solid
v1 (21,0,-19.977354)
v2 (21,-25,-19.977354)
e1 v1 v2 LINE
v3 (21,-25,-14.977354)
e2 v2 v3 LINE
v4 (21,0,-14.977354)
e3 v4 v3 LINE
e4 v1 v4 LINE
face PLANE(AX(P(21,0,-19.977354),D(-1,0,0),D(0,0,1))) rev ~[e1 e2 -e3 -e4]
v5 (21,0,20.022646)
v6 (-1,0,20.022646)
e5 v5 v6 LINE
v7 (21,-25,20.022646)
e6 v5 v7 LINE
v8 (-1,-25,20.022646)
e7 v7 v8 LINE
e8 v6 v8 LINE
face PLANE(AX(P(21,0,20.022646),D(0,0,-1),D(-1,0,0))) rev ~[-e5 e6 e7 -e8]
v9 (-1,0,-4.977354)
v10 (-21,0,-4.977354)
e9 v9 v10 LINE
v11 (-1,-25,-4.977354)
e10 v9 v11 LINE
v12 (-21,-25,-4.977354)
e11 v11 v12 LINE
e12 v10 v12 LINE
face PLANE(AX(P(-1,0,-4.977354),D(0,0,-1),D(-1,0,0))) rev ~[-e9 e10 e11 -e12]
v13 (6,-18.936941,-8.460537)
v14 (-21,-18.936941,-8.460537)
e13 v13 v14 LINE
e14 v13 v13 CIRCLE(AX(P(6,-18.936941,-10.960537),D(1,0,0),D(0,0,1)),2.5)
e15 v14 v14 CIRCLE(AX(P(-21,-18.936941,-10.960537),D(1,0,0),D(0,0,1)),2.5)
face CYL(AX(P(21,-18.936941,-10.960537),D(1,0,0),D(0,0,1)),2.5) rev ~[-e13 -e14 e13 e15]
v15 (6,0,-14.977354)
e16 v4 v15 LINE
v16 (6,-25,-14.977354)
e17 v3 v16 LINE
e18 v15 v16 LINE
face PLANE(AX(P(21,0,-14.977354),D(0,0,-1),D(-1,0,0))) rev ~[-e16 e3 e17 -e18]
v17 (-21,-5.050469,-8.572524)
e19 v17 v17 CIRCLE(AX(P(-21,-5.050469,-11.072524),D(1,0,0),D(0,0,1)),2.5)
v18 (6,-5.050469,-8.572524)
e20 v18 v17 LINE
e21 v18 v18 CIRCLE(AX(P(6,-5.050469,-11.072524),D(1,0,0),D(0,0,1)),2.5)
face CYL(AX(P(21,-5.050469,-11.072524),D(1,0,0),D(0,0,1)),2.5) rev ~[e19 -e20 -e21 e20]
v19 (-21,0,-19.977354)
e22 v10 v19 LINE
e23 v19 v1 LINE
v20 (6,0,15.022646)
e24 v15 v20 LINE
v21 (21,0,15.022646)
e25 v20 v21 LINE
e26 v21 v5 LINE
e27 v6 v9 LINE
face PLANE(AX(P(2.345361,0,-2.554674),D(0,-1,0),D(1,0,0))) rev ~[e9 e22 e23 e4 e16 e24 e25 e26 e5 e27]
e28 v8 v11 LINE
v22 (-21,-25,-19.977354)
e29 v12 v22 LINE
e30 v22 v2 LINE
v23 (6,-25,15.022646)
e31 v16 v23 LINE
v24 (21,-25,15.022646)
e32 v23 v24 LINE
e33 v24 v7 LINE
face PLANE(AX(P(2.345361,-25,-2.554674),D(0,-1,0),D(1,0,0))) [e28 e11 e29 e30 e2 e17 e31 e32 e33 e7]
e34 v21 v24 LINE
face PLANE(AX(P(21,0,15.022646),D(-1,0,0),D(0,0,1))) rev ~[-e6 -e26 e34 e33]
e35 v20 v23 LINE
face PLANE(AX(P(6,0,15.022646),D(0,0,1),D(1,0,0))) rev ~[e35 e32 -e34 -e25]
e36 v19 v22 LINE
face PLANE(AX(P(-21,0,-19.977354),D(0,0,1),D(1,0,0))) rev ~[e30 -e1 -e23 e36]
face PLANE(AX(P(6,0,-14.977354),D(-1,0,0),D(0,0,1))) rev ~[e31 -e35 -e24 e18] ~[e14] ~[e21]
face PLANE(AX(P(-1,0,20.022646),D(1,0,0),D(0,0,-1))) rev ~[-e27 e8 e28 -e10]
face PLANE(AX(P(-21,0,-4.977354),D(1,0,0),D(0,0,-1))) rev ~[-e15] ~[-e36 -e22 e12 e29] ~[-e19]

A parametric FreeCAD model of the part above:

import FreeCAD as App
import Part
import Sketcher

V = App.Vector
Q = App.Units.Quantity


def add_polygon(sketch, points):
    """Adds a closed chain of lines whose ends are joined by coincident constraints."""
    first, n = sketch.GeometryCount, len(points)
    for a, b in zip(points, points[1:] + points[:1]):
        sketch.addGeometry(Part.LineSegment(App.Vector(*a, 0), App.Vector(*b, 0)), False)
    for i in range(n):
        sketch.addConstraint(Sketcher.Constraint("Coincident", first + i, 2, first + (i + 1) % n, 1))

doc = App.newDocument("Part")
body = doc.addObject("PartDesign::Body", "Body")

sketch1 = doc.addObject("Sketcher::SketchObject", "Sketch")
body.addObject(sketch1)
sketch1.AttachmentSupport = (doc.XZ_Plane, [""])
sketch1.MapMode = "FlatFace"
add_polygon(sketch1, [(-21, -20), (21, -20), (21, -15), (6, -15), (6, 15), (21, 15), (21, 20), (-1, 20), (-1, -5), (-21, -5)])
sketch1.addConstraint([
    Sketcher.Constraint("Horizontal", 0),
    Sketcher.Constraint("Vertical", 1),
    Sketcher.Constraint("Horizontal", 2),
    Sketcher.Constraint("Vertical", 3),
    Sketcher.Constraint("Horizontal", 4),
    Sketcher.Constraint("Vertical", 5),
    Sketcher.Constraint("Horizontal", 6),
    Sketcher.Constraint("Vertical", 7),
    Sketcher.Constraint("Horizontal", 8),
    Sketcher.Constraint("Vertical", 9),
    Sketcher.Constraint("Vertical", 1, 2, 4, 2),
    Sketcher.Constraint("Equal", 1, 5),
    Sketcher.Constraint("Equal", 4, 9),
    Sketcher.Constraint("DistanceX", 0, 1, 0, 2, Q("42 mm")),
    Sketcher.Constraint("DistanceX", 2, 2, 2, 1, Q("15 mm")),
    Sketcher.Constraint("DistanceX", 6, 2, 6, 1, Q("22 mm")),
    Sketcher.Constraint("DistanceY", 1, 1, 1, 2, Q("5 mm")),
    Sketcher.Constraint("DistanceY", 3, 1, 3, 2, Q("30 mm")),
    Sketcher.Constraint("DistanceX", -1, 1, 0, 2, Q("21 mm")),
    Sketcher.Constraint("DistanceY", 0, 2, -1, 1, Q("19.977354 mm")),
])
pad1 = doc.addObject("PartDesign::Pad", "Pad")
body.addObject(pad1)
pad1.Profile = sketch1
pad1.Length = 25

sketch2 = doc.addObject("Sketcher::SketchObject", "Sketch001")
body.addObject(sketch2)
sketch2.AttachmentSupport = (doc.YZ_Plane, [""])
sketch2.MapMode = "FlatFace"
sketch2.AttachmentOffset = App.Placement(V(0, 0, 21), App.Rotation())
sketch2.addGeometry([
    Part.Circle(V(-18.9, -11, 0), V(0, 0, 1), 2.5),
    Part.Circle(V(-5.1, -11.1, 0), V(0, 0, 1), 2.5),
], False)
sketch2.addConstraint([
    Sketcher.Constraint("Equal", 0, 1),
    Sketcher.Constraint("Diameter", 0, Q("5 mm")),
    Sketcher.Constraint("DistanceX", 0, 3, -1, 1, Q("18.936941 mm")),
    Sketcher.Constraint("DistanceX", 1, 3, -1, 1, Q("5.050469 mm")),
    Sketcher.Constraint("DistanceY", 0, 3, -1, 1, Q("10.960537 mm")),
    Sketcher.Constraint("DistanceY", 1, 3, -1, 1, Q("11.072524 mm")),
])
pocket1 = doc.addObject("PartDesign::Pocket", "Pocket")
body.addObject(pocket1)
pocket1.Profile = sketch2
pocket1.Length = 45

doc.recompute()
